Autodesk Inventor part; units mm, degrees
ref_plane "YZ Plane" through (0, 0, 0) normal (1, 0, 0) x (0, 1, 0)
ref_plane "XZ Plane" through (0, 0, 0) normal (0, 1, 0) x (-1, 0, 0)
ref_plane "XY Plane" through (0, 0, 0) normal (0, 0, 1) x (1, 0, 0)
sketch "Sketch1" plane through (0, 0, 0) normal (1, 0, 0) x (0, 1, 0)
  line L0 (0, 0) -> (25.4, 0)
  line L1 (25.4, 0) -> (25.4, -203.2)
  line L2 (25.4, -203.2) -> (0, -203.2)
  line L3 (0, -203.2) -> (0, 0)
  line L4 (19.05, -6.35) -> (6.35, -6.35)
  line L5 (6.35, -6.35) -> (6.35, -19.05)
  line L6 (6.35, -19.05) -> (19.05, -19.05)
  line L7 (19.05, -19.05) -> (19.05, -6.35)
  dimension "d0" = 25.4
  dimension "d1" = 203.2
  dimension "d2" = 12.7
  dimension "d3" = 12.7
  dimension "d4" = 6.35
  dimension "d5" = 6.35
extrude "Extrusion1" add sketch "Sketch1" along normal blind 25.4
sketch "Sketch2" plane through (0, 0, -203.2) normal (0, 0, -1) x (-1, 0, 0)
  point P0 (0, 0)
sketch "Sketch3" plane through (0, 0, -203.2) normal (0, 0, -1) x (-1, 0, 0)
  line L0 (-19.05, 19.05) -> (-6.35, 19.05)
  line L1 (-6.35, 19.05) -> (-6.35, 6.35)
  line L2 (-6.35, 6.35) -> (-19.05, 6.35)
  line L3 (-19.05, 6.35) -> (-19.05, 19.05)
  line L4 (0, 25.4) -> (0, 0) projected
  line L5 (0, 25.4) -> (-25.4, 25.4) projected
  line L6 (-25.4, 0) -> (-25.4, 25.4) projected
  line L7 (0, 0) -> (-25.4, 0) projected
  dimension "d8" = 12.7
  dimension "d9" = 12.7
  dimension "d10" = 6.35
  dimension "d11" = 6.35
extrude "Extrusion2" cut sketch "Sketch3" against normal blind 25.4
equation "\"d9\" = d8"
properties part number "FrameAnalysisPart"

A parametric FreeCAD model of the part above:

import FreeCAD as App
import Part
import Sketcher
Q = App.Units.Quantity


def add_polygon(sketch, points):
    """Adds a closed chain of lines whose ends are joined by coincident constraints."""
    first, n = sketch.GeometryCount, len(points)
    for a, b in zip(points, points[1:] + points[:1]):
        sketch.addGeometry(Part.LineSegment(App.Vector(*a, 0), App.Vector(*b, 0)), False)
    for i in range(n):
        sketch.addConstraint(Sketcher.Constraint("Coincident", first + i, 2, first + (i + 1) % n, 1))

doc = App.newDocument("Part")
body = doc.addObject("PartDesign::Body", "Body")

# Sketch on YZ plane
sketch1 = body.newObject("Sketcher::SketchObject", "Sketch")
sketch1.AttachmentSupport = (doc.getObject("YZ_Plane"), [""])
sketch1.MapMode = "FlatFace"
add_polygon(sketch1, [(25.4, 0), (0, 0), (0, -203.2), (25.4, -203.2)])  # lines 0-3
add_polygon(sketch1, [(6.35, -6.35), (19.05, -6.35), (19.05, -19.05), (6.35, -19.05)])  # lines 4-7
sketch1.addConstraint([
    Sketcher.Constraint("Horizontal", 0),
    Sketcher.Constraint("Vertical", 1),
    Sketcher.Constraint("Horizontal", 2),
    Sketcher.Constraint("Vertical", 3),
    Sketcher.Constraint("Horizontal", 4),
    Sketcher.Constraint("Vertical", 5),
    Sketcher.Constraint("Horizontal", 6),
    Sketcher.Constraint("Vertical", 7),
    Sketcher.Constraint("Coincident", 0, 2, -1, 1),
    Sketcher.Constraint("Equal", 6, 5),
    Sketcher.Constraint("DistanceX", 0, 2, 0, 1, Q("1 in")),
    Sketcher.Constraint("DistanceY", 1, 2, 1, 1, Q("8 in")),
    Sketcher.Constraint("DistanceX", 4, 1, 4, 2, Q("0.5 in")),
    Sketcher.Constraint("DistanceY", 4, 2, -1, 1, Q("0.25 in")),
    Sketcher.Constraint("DistanceX", -1, 1, 6, 2, Q("0.25 in")),
])
pad1 = body.newObject("PartDesign::Pad", "Pad")
pad1.Profile = sketch1
pad1.Length = Q("1 in")

# Sketch on XY plane
sketch2 = body.newObject("Sketcher::SketchObject", "Sketch001")
sketch2.AttachmentSupport = (doc.getObject("XY_Plane"), [""])
sketch2.MapMode = "FlatFace"
sketch2.AttachmentOffset = App.Placement(App.Vector(0, 0, -8 * 25.4), App.Rotation())
add_polygon(sketch2, [(0, 0), (0, 25.4), (25.4, 25.4), (25.4, 0)])  # lines 0-3
add_polygon(sketch2, [(19.05, 6.35), (19.05, 19.05), (6.35, 19.05), (6.35, 6.35)])  # lines 4-7
sketch2.addConstraint([
    Sketcher.Constraint("Vertical", 0),
    Sketcher.Constraint("Horizontal", 1),
    Sketcher.Constraint("Vertical", 2),
    Sketcher.Constraint("Horizontal", 3),
    Sketcher.Constraint("Vertical", 4),
    Sketcher.Constraint("Horizontal", 5),
    Sketcher.Constraint("Vertical", 6),
    Sketcher.Constraint("Horizontal", 7),
    Sketcher.Constraint("Coincident", 3, 2, -1, 1),
    Sketcher.Constraint("Equal", 3, 0),
    Sketcher.Constraint("Equal", 7, 4),
    Sketcher.Constraint("DistanceX", 5, 2, 5, 1, Q("0.5 in")),
    Sketcher.Constraint("DistanceX", 1, 1, 1, 2, Q("1 in")),
    Sketcher.Constraint("DistanceX", -1, 1, 5, 2, Q("0.25 in")),
    Sketcher.Constraint("DistanceY", -1, 1, 6, 2, Q("0.25 in")),
])
pocket1 = body.newObject("PartDesign::Pocket", "Pocket")
pocket1.Profile = sketch2
pocket1.Length = Q("1 in")
pocket1.Reversed = True

doc.recompute()
